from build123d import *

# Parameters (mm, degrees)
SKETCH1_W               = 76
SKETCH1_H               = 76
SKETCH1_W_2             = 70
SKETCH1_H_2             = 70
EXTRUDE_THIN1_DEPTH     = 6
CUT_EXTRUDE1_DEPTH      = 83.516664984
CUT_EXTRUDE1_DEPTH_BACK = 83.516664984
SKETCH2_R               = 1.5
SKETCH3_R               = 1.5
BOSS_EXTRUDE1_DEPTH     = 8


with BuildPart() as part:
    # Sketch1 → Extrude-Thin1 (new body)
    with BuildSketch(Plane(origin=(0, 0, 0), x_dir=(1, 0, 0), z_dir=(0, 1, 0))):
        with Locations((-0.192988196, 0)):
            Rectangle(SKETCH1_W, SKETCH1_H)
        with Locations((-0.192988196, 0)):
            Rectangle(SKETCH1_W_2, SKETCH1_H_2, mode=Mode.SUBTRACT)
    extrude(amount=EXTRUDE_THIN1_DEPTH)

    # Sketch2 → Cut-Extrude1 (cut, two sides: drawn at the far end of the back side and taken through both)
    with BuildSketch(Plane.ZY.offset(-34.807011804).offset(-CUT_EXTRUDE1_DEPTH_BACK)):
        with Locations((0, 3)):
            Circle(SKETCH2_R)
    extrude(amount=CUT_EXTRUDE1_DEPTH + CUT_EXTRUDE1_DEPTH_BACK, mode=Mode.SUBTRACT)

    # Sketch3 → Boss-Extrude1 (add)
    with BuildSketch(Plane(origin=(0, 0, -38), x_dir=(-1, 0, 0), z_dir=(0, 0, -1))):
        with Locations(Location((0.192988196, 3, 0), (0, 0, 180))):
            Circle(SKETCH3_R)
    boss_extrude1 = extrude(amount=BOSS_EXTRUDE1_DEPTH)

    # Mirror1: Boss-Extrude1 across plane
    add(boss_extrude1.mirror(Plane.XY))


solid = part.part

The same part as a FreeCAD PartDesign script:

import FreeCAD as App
import Part
import Sketcher

V = App.Vector
Q = App.Units.Quantity


def add_polygon(sketch, points):
    """Adds a closed chain of lines whose ends are joined by coincident constraints."""
    first, n = sketch.GeometryCount, len(points)
    for a, b in zip(points, points[1:] + points[:1]):
        sketch.addGeometry(Part.LineSegment(App.Vector(*a, 0), App.Vector(*b, 0)), False)
    for i in range(n):
        sketch.addConstraint(Sketcher.Constraint("Coincident", first + i, 2, first + (i + 1) % n, 1))

doc = App.newDocument("Part")
body = doc.addObject("PartDesign::Body", "Body")

# Sketch on XZ plane
sketch1 = body.newObject("Sketcher::SketchObject", "Sketch")
sketch1.AttachmentSupport = (doc.getObject("XZ_Plane"), [""])
sketch1.MapMode = "FlatFace"
add_polygon(sketch1, [(-38.192988, -38), (-38.192988, 38), (37.807012, 38), (37.807012, -38)])  # lines 0-3
add_polygon(sketch1, [(34.807012, 35), (-35.192988, 35), (-35.192988, -35), (34.807012, -35)])  # lines 4-7
sketch1.addConstraint([
    Sketcher.Constraint("Vertical", 0),
    Sketcher.Constraint("Horizontal", 1),
    Sketcher.Constraint("Vertical", 2),
    Sketcher.Constraint("Horizontal", 3),
    Sketcher.Constraint("Horizontal", 4),
    Sketcher.Constraint("Vertical", 5),
    Sketcher.Constraint("Horizontal", 6),
    Sketcher.Constraint("Vertical", 7),
    Sketcher.Constraint("Equal", 3, 0),
    Sketcher.Constraint("Equal", 6, 5),
    Sketcher.Constraint("DistanceX", 1, 1, 1, 2, Q("76 mm")),
    Sketcher.Constraint("DistanceX", 4, 2, 4, 1, Q("70 mm")),
    Sketcher.Constraint("DistanceY", -1, 1, 0, 2, Q("38 mm")),
    Sketcher.Constraint("DistanceY", -1, 1, 4, 2, Q("35 mm")),
    Sketcher.Constraint("DistanceX", 0, 2, 4, 2, Q("3 mm")),
    Sketcher.Constraint("DistanceX", 0, 2, -1, 1, Q("38.192988 mm")),
])
pad1 = body.newObject("PartDesign::Pad", "Pad")
pad1.Profile = sketch1
pad1.Length = 6
pad1.Reversed = True

# Sketch on YZ plane
sketch2 = body.newObject("Sketcher::SketchObject", "Sketch001")
sketch2.AttachmentSupport = (doc.getObject("YZ_Plane"), [""])
sketch2.MapMode = "FlatFace"
sketch2.AttachmentOffset = App.Placement(V(0, 0, 34.807012), App.Rotation())
sketch2.addGeometry(Part.Circle(V(3, 0, 0), V(0, 0, 1), 1.5), False)
sketch2.addConstraint([
    Sketcher.Constraint("PointOnObject", 0, 3, -1),
    Sketcher.Constraint("Diameter", 0, Q("3 mm")),
    Sketcher.Constraint("DistanceX", -1, 1, 0, 3, Q("3 mm")),
])
pocket1 = body.newObject("PartDesign::Pocket", "Pocket")
pocket1.Profile = sketch2
pocket1.Type = "ThroughAll"
pocket1.Midplane = True

# Sketch on XY plane
sketch3 = body.newObject("Sketcher::SketchObject", "Sketch002")
sketch3.AttachmentSupport = (doc.getObject("XY_Plane"), [""])
sketch3.MapMode = "FlatFace"
sketch3.AttachmentOffset = App.Placement(V(0, 0, -38), App.Rotation())
sketch3.addGeometry(Part.Circle(V(-0.192988, 3, 0), V(0, 0, 1), 1.5), False)
sketch3.addConstraint([
    Sketcher.Constraint("Diameter", 0, Q("3 mm")),
    Sketcher.Constraint("DistanceY", -1, 1, 0, 3, Q("3 mm")),
    Sketcher.Constraint("DistanceX", 0, 3, -1, 1, Q("0.192988 mm")),
])
pad2 = body.newObject("PartDesign::Pad", "Pad001")
pad2.Profile = sketch3
pad2.Length = 8
pad2.Reversed = True
doc.recompute()

mirrored = body.newObject("PartDesign::Mirrored", "Mirrored")
mirrored.Originals = [pad2]
mirrored.MirrorPlane = (doc.getObject("XY_Plane"), [""])
body.Tip = mirrored

doc.recompute()
